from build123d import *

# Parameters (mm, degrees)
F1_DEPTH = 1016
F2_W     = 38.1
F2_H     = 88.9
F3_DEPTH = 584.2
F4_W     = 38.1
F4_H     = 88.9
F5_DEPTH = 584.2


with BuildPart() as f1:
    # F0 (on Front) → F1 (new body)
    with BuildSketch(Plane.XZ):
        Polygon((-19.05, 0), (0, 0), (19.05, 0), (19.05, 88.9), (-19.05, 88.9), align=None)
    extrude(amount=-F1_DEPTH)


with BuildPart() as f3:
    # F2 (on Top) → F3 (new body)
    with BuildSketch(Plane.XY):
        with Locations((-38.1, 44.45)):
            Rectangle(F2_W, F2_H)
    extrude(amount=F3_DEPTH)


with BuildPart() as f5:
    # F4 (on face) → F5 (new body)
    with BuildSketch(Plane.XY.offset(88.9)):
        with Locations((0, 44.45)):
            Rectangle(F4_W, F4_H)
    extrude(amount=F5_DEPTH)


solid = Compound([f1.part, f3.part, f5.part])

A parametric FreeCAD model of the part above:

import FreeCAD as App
import Part
import Sketcher

V = App.Vector
Q = App.Units.Quantity

doc = App.newDocument("Part")
body = doc.addObject("PartDesign::Body", "Body")

# Sketch on XZ plane
sketch1 = doc.addObject("Sketcher::SketchObject", "Sketch")
body.addObject(sketch1)
sketch1.AttachmentSupport = (doc.XZ_Plane, [""])
sketch1.MapMode = "FlatFace"
sketch1.addGeometry([
    Part.LineSegment(V(-19.05, 0, 0), V(19.05, 0, 0)),
    Part.LineSegment(V(19.05, 0, 0), V(19.05, 88.9, 0)),
    Part.LineSegment(V(19.05, 88.9, 0), V(-19.05, 88.9, 0)),
    Part.LineSegment(V(-19.05, 88.9, 0), V(-19.05, 0, 0)),
], False)
sketch1.addConstraint([
    Sketcher.Constraint("Coincident", 0, 2, 1, 1),
    Sketcher.Constraint("Coincident", 1, 2, 2, 1),
    Sketcher.Constraint("Coincident", 2, 2, 3, 1),
    Sketcher.Constraint("Coincident", 3, 2, 0, 1),
    Sketcher.Constraint("Horizontal", 0),
    Sketcher.Constraint("Vertical", 1),
    Sketcher.Constraint("Horizontal", 2),
    Sketcher.Constraint("Vertical", 3),
    Sketcher.Constraint("Symmetric", 0, 2, 3, 2, -1, 1),
    Sketcher.Constraint("DistanceX", 0, 1, 0, 2, Q("1.5 in")),
    Sketcher.Constraint("DistanceY", 1, 1, 1, 2, Q("3.5 in")),
])
pad1 = doc.addObject("PartDesign::Pad", "Pad")
body.addObject(pad1)
pad1.Profile = sketch1
pad1.Length = Q("40 in")
pad1.Reversed = True
body2 = doc.addObject("PartDesign::Body", "Body001")

# Sketch on XY plane
sketch2 = doc.addObject("Sketcher::SketchObject", "Sketch001")
body2.addObject(sketch2)
sketch2.AttachmentSupport = (doc.getObject("XY_Plane001"), [""])
sketch2.MapMode = "FlatFace"
sketch2.addGeometry([
    Part.LineSegment(V(-57.15, 88.9, 0), V(-57.15, 0, 0)),
    Part.LineSegment(V(-57.15, 0, 0), V(-19.05, 0, 0)),
    Part.LineSegment(V(-19.05, 0, 0), V(-19.05, 88.9, 0)),
    Part.LineSegment(V(-19.05, 88.9, 0), V(-57.15, 88.9, 0)),
], False)
sketch2.addConstraint([
    Sketcher.Constraint("Coincident", 0, 2, 1, 1),
    Sketcher.Constraint("Coincident", 1, 2, 2, 1),
    Sketcher.Constraint("Coincident", 2, 2, 3, 1),
    Sketcher.Constraint("Coincident", 3, 2, 0, 1),
    Sketcher.Constraint("Vertical", 0),
    Sketcher.Constraint("Horizontal", 1),
    Sketcher.Constraint("Vertical", 2),
    Sketcher.Constraint("Horizontal", 3),
    Sketcher.Constraint("PointOnObject", 0, 2, -1),
    Sketcher.Constraint("DistanceX", 1, 1, 1, 2, Q("1.5 in")),
    Sketcher.Constraint("DistanceY", 0, 2, 0, 1, Q("3.5 in")),
    Sketcher.Constraint("DistanceX", 0, 2, -1, 1, Q("2.25 in")),
])
pad2 = doc.addObject("PartDesign::Pad", "Pad001")
body2.addObject(pad2)
pad2.Profile = sketch2
pad2.Length = Q("23 in")
body3 = doc.addObject("PartDesign::Body", "Body002")

# Sketch on XY plane
sketch3 = doc.addObject("Sketcher::SketchObject", "Sketch002")
body3.addObject(sketch3)
sketch3.AttachmentSupport = (doc.getObject("XY_Plane002"), [""])
sketch3.MapMode = "FlatFace"
sketch3.AttachmentOffset = App.Placement(V(0, 0, 3.5 * 25.4), App.Rotation())
sketch3.addGeometry([
    Part.LineSegment(V(-19.05, 88.9, 0), V(-19.05, 0, 0)),
    Part.LineSegment(V(-19.05, 0, 0), V(19.05, 0, 0)),
    Part.LineSegment(V(19.05, 0, 0), V(19.05, 88.9, 0)),
    Part.LineSegment(V(19.05, 88.9, 0), V(-19.05, 88.9, 0)),
], False)
sketch3.addConstraint([
    Sketcher.Constraint("Coincident", 0, 2, 1, 1),
    Sketcher.Constraint("Coincident", 1, 2, 2, 1),
    Sketcher.Constraint("Coincident", 2, 2, 3, 1),
    Sketcher.Constraint("Coincident", 3, 2, 0, 1),
    Sketcher.Constraint("Vertical", 0),
    Sketcher.Constraint("Horizontal", 1),
    Sketcher.Constraint("Vertical", 2),
    Sketcher.Constraint("Horizontal", 3),
    Sketcher.Constraint("Symmetric", 0, 2, 1, 2, -1, 1),
    Sketcher.Constraint("DistanceX", 1, 1, 1, 2, Q("1.5 in")),
    Sketcher.Constraint("DistanceY", 0, 2, 0, 1, Q("3.5 in")),
])
pad3 = doc.addObject("PartDesign::Pad", "Pad002")
body3.addObject(pad3)
pad3.Profile = sketch3
pad3.Length = Q("23 in")

doc.recompute()
